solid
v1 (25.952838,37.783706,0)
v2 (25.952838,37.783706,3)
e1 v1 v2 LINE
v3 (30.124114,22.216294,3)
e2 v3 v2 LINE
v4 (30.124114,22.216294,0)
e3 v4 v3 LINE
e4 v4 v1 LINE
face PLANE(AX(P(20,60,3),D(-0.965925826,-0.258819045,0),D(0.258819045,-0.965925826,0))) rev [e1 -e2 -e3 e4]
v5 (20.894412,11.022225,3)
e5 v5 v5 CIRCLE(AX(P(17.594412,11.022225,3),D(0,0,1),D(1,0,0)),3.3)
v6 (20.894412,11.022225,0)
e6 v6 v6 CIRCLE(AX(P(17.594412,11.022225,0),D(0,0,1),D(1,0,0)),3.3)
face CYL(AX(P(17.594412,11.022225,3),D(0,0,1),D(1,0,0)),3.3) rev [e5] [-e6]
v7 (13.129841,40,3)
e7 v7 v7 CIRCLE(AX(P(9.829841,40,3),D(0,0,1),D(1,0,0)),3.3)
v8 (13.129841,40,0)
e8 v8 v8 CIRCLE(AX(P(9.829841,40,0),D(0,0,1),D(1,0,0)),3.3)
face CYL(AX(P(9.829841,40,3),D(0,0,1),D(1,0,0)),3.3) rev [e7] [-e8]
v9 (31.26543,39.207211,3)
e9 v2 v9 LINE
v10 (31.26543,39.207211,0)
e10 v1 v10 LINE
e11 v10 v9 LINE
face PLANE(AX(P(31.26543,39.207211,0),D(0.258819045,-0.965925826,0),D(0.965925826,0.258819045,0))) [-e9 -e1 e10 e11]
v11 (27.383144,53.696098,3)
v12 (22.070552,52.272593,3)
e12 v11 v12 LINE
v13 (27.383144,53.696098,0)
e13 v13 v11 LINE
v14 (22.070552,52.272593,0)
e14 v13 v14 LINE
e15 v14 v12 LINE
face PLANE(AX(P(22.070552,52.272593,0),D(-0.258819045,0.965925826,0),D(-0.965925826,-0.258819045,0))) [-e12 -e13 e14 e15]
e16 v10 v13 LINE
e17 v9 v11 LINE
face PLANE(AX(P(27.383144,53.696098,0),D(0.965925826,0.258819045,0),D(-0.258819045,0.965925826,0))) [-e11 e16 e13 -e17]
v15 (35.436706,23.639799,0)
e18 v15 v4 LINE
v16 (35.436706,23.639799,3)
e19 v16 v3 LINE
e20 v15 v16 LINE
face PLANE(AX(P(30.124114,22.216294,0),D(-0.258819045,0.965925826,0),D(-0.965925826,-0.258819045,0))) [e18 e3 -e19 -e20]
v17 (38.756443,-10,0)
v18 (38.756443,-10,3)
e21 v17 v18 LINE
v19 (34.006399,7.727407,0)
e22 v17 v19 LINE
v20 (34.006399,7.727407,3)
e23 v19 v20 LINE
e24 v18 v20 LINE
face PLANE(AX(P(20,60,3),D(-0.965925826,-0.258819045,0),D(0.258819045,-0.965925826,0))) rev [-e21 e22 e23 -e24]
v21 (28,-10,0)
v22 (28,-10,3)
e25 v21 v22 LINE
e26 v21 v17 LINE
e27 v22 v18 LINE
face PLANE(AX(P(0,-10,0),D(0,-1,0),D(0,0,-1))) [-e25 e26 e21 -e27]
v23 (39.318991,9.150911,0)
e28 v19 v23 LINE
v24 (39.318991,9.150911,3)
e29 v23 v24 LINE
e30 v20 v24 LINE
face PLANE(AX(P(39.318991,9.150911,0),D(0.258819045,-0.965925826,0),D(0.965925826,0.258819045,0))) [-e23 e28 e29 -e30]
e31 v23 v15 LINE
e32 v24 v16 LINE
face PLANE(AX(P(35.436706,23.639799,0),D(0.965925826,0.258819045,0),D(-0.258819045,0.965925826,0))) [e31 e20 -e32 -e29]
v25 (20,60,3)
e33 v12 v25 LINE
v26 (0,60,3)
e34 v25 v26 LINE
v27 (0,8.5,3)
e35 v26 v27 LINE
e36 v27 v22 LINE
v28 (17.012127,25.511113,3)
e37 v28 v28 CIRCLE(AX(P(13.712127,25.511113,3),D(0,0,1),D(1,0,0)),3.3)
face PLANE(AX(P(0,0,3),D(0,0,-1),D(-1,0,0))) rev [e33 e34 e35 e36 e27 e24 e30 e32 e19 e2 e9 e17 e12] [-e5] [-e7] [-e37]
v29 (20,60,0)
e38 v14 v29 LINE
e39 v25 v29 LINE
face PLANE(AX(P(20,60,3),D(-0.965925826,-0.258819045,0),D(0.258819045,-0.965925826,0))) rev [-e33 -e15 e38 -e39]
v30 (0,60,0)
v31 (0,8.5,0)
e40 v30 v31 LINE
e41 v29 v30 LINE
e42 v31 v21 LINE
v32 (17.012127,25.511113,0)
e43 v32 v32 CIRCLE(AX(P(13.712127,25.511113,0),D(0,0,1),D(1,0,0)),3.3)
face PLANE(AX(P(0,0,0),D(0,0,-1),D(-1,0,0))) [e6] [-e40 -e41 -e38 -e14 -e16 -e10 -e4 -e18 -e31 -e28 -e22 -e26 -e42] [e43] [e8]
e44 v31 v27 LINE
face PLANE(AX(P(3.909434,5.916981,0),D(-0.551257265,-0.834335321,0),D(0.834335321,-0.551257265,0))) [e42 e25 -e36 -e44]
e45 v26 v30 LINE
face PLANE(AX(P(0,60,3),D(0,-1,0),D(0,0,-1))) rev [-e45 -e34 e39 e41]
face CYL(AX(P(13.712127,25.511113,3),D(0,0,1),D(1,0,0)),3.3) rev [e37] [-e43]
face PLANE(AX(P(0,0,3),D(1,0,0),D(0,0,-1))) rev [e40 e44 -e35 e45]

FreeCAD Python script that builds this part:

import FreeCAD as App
import Part
import Sketcher

V = App.Vector
Q = App.Units.Quantity


def add_polygon(sketch, points):
    """Adds a closed chain of lines whose ends are joined by coincident constraints."""
    first, n = sketch.GeometryCount, len(points)
    for a, b in zip(points, points[1:] + points[:1]):
        sketch.addGeometry(Part.LineSegment(App.Vector(*a, 0), App.Vector(*b, 0)), False)
    for i in range(n):
        sketch.addConstraint(Sketcher.Constraint("Coincident", first + i, 2, first + (i + 1) % n, 1))

doc = App.newDocument("Part")
body = doc.addObject("PartDesign::Body", "Body")

# Sketch on XY plane
sketch1 = body.newObject("Sketcher::SketchObject", "Sketch")
sketch1.AttachmentSupport = (doc.getObject("XY_Plane"), [""])
sketch1.MapMode = "FlatFace"
add_polygon(sketch1, [(0, 60), (0, 0), (36.076952, 0), (20, 60)])  # lines 0-3
sketch1.addConstraint([
    Sketcher.Constraint("Vertical", 0),
    Sketcher.Constraint("Horizontal", 1),
    Sketcher.Constraint("Horizontal", 3),
    Sketcher.Constraint("Coincident", 0, 2, -1, 1),
    Sketcher.Constraint("DistanceX", 3, 2, 3, 1, 20.0),
    Sketcher.Constraint("DistanceY", 0, 2, 0, 1, 60.0),
    Sketcher.Constraint("Angle", 2, Q("105 deg")),
])
pad1 = body.newObject("PartDesign::Pad", "Pad")
pad1.Profile = sketch1
pad1.Length = 3

# Sketch on XY plane
sketch2 = body.newObject("Sketcher::SketchObject", "Sketch001")
sketch2.AttachmentSupport = (doc.getObject("XY_Plane"), [""])
sketch2.MapMode = "FlatFace"
sketch2.AttachmentOffset = App.Placement(V(0, 0, 3), App.Rotation())
sketch2.addGeometry([
    Part.Circle(V(9.829841, 40, 0), V(0, 0, 1), 3.3),
    Part.Circle(V(13.712127, 25.511113, 0), V(0, 0, 1), 3.3),
    Part.Circle(V(17.594412, 11.022225, 0), V(0, 0, 1), 3.3),
], False)
sketch2.addConstraint([
    Sketcher.Constraint("Equal", 0, 1),
    Sketcher.Constraint("Equal", 1, 2),
    Sketcher.Constraint("Diameter", 0, 6.6),
    Sketcher.Constraint("DistanceY", -1, 1, 0, 3, 40.0),
    Sketcher.Constraint("DistanceX", -1, 1, 0, 3, 9.829841),
    Sketcher.Constraint("DistanceX", 0, 3, 2, 3, 7.764571),
    Sketcher.Constraint("DistanceX", -1, 1, 1, 3, 13.712127),
    Sketcher.Constraint("DistanceY", -1, 1, 1, 3, 25.511113),
    Sketcher.Constraint("DistanceY", -1, 1, 2, 3, 11.022225),
])
doc.recompute()
hole = body.newObject("PartDesign::Hole", "Hole")
hole.Profile = sketch2
hole.ThreadType = "None"
hole.Diameter = 6.6
hole.DepthType = "ThroughAll"

# Sketch on XY plane
sketch3 = body.newObject("Sketcher::SketchObject", "Sketch002")
sketch3.AttachmentSupport = (doc.getObject("XY_Plane"), [""])
sketch3.MapMode = "FlatFace"
sketch3.AttachmentOffset = App.Placement(V(0, 0, 3), App.Rotation())
add_polygon(sketch3, [(27.383144, 53.696098), (22.070552, 52.272593), (25.952838, 37.783706), (31.26543, 39.207211)])  # lines 0-3
add_polygon(sketch3, [(35.436706, 23.639799), (30.124114, 22.216294), (34.006399, 7.727407), (39.318991, 9.150911)])  # lines 4-7
sketch3.addConstraint([
    Sketcher.Constraint("Perpendicular", 0, 1),
    Sketcher.Constraint("Perpendicular", 1, 2),
    Sketcher.Constraint("Perpendicular", 2, 3),
    Sketcher.Constraint("Perpendicular", 3, 4),
    Sketcher.Constraint("Perpendicular", 4, 5),
    Sketcher.Constraint("Perpendicular", 5, 6),
    Sketcher.Constraint("Perpendicular", 6, 7),
    Sketcher.Constraint("Equal", 2, 4),
    Sketcher.Constraint("Equal", 3, 5),
    Sketcher.Constraint("Angle", 0, Q("-165 deg")),
    Sketcher.Constraint("Distance", 1, 15.0),
    Sketcher.Constraint("Distance", 0, 5.5),
    Sketcher.Constraint("DistanceY", -1, 1, 3, 2, 53.696098),
    Sketcher.Constraint("DistanceX", -1, 1, 5, 2, 34.006399),
    Sketcher.Constraint("DistanceY", -1, 1, 7, 2, 23.639799),
    Sketcher.Constraint("DistanceX", -1, 1, 1, 2, 25.952838),
])
pad2 = body.newObject("PartDesign::Pad", "Pad001")
pad2.Profile = sketch3
pad2.Length = 3
pad2.Reversed = True

# Sketch on XY plane
sketch4 = body.newObject("Sketcher::SketchObject", "Sketch003")
sketch4.AttachmentSupport = (doc.getObject("XY_Plane"), [""])
sketch4.MapMode = "FlatFace"
sketch4.AttachmentOffset = App.Placement(V(0, 0, 3), App.Rotation())
add_polygon(sketch4, [(0, 0), (0, -10), (38.756443, -10), (36.076952, 0)])  # lines 0-3
sketch4.addConstraint([
    Sketcher.Constraint("Vertical", 0),
    Sketcher.Constraint("Horizontal", 1),
    Sketcher.Constraint("Horizontal", 3),
    Sketcher.Constraint("Coincident", 3, 2, -1, 1),
    Sketcher.Constraint("DistanceY", 0, 2, 0, 1, 10.0),
    Sketcher.Constraint("Angle", 2, Q("105 deg")),
    Sketcher.Constraint("DistanceX", 3, 2, 3, 1, 36.076952),
])
pad3 = body.newObject("PartDesign::Pad", "Pad002")
pad3.Profile = sketch4
pad3.Length = 3
pad3.Reversed = True

# Sketch on XY plane
sketch5 = body.newObject("Sketcher::SketchObject", "Sketch004")
sketch5.AttachmentSupport = (doc.getObject("XY_Plane"), [""])
sketch5.MapMode = "FlatFace"
sketch5.AttachmentOffset = App.Placement(V(0, 0, 3), App.Rotation())
add_polygon(sketch5, [(0, 8.5), (0, -10), (28, -10)])  # lines 0-2
sketch5.addConstraint([
    Sketcher.Constraint("Vertical", 0),
    Sketcher.Constraint("Horizontal", 1),
    Sketcher.Constraint("PointOnObject", 0, 2, -2),
    Sketcher.Constraint("DistanceX", 1, 1, 1, 2, 28.0),
    Sketcher.Constraint("DistanceY", 0, 2, 0, 1, 18.5),
    Sketcher.Constraint("DistanceY", 0, 2, -1, 1, 10.0),
])
pocket1 = body.newObject("PartDesign::Pocket", "Pocket")
pocket1.Profile = sketch5
pocket1.Type = "ThroughAll"

doc.recompute()
